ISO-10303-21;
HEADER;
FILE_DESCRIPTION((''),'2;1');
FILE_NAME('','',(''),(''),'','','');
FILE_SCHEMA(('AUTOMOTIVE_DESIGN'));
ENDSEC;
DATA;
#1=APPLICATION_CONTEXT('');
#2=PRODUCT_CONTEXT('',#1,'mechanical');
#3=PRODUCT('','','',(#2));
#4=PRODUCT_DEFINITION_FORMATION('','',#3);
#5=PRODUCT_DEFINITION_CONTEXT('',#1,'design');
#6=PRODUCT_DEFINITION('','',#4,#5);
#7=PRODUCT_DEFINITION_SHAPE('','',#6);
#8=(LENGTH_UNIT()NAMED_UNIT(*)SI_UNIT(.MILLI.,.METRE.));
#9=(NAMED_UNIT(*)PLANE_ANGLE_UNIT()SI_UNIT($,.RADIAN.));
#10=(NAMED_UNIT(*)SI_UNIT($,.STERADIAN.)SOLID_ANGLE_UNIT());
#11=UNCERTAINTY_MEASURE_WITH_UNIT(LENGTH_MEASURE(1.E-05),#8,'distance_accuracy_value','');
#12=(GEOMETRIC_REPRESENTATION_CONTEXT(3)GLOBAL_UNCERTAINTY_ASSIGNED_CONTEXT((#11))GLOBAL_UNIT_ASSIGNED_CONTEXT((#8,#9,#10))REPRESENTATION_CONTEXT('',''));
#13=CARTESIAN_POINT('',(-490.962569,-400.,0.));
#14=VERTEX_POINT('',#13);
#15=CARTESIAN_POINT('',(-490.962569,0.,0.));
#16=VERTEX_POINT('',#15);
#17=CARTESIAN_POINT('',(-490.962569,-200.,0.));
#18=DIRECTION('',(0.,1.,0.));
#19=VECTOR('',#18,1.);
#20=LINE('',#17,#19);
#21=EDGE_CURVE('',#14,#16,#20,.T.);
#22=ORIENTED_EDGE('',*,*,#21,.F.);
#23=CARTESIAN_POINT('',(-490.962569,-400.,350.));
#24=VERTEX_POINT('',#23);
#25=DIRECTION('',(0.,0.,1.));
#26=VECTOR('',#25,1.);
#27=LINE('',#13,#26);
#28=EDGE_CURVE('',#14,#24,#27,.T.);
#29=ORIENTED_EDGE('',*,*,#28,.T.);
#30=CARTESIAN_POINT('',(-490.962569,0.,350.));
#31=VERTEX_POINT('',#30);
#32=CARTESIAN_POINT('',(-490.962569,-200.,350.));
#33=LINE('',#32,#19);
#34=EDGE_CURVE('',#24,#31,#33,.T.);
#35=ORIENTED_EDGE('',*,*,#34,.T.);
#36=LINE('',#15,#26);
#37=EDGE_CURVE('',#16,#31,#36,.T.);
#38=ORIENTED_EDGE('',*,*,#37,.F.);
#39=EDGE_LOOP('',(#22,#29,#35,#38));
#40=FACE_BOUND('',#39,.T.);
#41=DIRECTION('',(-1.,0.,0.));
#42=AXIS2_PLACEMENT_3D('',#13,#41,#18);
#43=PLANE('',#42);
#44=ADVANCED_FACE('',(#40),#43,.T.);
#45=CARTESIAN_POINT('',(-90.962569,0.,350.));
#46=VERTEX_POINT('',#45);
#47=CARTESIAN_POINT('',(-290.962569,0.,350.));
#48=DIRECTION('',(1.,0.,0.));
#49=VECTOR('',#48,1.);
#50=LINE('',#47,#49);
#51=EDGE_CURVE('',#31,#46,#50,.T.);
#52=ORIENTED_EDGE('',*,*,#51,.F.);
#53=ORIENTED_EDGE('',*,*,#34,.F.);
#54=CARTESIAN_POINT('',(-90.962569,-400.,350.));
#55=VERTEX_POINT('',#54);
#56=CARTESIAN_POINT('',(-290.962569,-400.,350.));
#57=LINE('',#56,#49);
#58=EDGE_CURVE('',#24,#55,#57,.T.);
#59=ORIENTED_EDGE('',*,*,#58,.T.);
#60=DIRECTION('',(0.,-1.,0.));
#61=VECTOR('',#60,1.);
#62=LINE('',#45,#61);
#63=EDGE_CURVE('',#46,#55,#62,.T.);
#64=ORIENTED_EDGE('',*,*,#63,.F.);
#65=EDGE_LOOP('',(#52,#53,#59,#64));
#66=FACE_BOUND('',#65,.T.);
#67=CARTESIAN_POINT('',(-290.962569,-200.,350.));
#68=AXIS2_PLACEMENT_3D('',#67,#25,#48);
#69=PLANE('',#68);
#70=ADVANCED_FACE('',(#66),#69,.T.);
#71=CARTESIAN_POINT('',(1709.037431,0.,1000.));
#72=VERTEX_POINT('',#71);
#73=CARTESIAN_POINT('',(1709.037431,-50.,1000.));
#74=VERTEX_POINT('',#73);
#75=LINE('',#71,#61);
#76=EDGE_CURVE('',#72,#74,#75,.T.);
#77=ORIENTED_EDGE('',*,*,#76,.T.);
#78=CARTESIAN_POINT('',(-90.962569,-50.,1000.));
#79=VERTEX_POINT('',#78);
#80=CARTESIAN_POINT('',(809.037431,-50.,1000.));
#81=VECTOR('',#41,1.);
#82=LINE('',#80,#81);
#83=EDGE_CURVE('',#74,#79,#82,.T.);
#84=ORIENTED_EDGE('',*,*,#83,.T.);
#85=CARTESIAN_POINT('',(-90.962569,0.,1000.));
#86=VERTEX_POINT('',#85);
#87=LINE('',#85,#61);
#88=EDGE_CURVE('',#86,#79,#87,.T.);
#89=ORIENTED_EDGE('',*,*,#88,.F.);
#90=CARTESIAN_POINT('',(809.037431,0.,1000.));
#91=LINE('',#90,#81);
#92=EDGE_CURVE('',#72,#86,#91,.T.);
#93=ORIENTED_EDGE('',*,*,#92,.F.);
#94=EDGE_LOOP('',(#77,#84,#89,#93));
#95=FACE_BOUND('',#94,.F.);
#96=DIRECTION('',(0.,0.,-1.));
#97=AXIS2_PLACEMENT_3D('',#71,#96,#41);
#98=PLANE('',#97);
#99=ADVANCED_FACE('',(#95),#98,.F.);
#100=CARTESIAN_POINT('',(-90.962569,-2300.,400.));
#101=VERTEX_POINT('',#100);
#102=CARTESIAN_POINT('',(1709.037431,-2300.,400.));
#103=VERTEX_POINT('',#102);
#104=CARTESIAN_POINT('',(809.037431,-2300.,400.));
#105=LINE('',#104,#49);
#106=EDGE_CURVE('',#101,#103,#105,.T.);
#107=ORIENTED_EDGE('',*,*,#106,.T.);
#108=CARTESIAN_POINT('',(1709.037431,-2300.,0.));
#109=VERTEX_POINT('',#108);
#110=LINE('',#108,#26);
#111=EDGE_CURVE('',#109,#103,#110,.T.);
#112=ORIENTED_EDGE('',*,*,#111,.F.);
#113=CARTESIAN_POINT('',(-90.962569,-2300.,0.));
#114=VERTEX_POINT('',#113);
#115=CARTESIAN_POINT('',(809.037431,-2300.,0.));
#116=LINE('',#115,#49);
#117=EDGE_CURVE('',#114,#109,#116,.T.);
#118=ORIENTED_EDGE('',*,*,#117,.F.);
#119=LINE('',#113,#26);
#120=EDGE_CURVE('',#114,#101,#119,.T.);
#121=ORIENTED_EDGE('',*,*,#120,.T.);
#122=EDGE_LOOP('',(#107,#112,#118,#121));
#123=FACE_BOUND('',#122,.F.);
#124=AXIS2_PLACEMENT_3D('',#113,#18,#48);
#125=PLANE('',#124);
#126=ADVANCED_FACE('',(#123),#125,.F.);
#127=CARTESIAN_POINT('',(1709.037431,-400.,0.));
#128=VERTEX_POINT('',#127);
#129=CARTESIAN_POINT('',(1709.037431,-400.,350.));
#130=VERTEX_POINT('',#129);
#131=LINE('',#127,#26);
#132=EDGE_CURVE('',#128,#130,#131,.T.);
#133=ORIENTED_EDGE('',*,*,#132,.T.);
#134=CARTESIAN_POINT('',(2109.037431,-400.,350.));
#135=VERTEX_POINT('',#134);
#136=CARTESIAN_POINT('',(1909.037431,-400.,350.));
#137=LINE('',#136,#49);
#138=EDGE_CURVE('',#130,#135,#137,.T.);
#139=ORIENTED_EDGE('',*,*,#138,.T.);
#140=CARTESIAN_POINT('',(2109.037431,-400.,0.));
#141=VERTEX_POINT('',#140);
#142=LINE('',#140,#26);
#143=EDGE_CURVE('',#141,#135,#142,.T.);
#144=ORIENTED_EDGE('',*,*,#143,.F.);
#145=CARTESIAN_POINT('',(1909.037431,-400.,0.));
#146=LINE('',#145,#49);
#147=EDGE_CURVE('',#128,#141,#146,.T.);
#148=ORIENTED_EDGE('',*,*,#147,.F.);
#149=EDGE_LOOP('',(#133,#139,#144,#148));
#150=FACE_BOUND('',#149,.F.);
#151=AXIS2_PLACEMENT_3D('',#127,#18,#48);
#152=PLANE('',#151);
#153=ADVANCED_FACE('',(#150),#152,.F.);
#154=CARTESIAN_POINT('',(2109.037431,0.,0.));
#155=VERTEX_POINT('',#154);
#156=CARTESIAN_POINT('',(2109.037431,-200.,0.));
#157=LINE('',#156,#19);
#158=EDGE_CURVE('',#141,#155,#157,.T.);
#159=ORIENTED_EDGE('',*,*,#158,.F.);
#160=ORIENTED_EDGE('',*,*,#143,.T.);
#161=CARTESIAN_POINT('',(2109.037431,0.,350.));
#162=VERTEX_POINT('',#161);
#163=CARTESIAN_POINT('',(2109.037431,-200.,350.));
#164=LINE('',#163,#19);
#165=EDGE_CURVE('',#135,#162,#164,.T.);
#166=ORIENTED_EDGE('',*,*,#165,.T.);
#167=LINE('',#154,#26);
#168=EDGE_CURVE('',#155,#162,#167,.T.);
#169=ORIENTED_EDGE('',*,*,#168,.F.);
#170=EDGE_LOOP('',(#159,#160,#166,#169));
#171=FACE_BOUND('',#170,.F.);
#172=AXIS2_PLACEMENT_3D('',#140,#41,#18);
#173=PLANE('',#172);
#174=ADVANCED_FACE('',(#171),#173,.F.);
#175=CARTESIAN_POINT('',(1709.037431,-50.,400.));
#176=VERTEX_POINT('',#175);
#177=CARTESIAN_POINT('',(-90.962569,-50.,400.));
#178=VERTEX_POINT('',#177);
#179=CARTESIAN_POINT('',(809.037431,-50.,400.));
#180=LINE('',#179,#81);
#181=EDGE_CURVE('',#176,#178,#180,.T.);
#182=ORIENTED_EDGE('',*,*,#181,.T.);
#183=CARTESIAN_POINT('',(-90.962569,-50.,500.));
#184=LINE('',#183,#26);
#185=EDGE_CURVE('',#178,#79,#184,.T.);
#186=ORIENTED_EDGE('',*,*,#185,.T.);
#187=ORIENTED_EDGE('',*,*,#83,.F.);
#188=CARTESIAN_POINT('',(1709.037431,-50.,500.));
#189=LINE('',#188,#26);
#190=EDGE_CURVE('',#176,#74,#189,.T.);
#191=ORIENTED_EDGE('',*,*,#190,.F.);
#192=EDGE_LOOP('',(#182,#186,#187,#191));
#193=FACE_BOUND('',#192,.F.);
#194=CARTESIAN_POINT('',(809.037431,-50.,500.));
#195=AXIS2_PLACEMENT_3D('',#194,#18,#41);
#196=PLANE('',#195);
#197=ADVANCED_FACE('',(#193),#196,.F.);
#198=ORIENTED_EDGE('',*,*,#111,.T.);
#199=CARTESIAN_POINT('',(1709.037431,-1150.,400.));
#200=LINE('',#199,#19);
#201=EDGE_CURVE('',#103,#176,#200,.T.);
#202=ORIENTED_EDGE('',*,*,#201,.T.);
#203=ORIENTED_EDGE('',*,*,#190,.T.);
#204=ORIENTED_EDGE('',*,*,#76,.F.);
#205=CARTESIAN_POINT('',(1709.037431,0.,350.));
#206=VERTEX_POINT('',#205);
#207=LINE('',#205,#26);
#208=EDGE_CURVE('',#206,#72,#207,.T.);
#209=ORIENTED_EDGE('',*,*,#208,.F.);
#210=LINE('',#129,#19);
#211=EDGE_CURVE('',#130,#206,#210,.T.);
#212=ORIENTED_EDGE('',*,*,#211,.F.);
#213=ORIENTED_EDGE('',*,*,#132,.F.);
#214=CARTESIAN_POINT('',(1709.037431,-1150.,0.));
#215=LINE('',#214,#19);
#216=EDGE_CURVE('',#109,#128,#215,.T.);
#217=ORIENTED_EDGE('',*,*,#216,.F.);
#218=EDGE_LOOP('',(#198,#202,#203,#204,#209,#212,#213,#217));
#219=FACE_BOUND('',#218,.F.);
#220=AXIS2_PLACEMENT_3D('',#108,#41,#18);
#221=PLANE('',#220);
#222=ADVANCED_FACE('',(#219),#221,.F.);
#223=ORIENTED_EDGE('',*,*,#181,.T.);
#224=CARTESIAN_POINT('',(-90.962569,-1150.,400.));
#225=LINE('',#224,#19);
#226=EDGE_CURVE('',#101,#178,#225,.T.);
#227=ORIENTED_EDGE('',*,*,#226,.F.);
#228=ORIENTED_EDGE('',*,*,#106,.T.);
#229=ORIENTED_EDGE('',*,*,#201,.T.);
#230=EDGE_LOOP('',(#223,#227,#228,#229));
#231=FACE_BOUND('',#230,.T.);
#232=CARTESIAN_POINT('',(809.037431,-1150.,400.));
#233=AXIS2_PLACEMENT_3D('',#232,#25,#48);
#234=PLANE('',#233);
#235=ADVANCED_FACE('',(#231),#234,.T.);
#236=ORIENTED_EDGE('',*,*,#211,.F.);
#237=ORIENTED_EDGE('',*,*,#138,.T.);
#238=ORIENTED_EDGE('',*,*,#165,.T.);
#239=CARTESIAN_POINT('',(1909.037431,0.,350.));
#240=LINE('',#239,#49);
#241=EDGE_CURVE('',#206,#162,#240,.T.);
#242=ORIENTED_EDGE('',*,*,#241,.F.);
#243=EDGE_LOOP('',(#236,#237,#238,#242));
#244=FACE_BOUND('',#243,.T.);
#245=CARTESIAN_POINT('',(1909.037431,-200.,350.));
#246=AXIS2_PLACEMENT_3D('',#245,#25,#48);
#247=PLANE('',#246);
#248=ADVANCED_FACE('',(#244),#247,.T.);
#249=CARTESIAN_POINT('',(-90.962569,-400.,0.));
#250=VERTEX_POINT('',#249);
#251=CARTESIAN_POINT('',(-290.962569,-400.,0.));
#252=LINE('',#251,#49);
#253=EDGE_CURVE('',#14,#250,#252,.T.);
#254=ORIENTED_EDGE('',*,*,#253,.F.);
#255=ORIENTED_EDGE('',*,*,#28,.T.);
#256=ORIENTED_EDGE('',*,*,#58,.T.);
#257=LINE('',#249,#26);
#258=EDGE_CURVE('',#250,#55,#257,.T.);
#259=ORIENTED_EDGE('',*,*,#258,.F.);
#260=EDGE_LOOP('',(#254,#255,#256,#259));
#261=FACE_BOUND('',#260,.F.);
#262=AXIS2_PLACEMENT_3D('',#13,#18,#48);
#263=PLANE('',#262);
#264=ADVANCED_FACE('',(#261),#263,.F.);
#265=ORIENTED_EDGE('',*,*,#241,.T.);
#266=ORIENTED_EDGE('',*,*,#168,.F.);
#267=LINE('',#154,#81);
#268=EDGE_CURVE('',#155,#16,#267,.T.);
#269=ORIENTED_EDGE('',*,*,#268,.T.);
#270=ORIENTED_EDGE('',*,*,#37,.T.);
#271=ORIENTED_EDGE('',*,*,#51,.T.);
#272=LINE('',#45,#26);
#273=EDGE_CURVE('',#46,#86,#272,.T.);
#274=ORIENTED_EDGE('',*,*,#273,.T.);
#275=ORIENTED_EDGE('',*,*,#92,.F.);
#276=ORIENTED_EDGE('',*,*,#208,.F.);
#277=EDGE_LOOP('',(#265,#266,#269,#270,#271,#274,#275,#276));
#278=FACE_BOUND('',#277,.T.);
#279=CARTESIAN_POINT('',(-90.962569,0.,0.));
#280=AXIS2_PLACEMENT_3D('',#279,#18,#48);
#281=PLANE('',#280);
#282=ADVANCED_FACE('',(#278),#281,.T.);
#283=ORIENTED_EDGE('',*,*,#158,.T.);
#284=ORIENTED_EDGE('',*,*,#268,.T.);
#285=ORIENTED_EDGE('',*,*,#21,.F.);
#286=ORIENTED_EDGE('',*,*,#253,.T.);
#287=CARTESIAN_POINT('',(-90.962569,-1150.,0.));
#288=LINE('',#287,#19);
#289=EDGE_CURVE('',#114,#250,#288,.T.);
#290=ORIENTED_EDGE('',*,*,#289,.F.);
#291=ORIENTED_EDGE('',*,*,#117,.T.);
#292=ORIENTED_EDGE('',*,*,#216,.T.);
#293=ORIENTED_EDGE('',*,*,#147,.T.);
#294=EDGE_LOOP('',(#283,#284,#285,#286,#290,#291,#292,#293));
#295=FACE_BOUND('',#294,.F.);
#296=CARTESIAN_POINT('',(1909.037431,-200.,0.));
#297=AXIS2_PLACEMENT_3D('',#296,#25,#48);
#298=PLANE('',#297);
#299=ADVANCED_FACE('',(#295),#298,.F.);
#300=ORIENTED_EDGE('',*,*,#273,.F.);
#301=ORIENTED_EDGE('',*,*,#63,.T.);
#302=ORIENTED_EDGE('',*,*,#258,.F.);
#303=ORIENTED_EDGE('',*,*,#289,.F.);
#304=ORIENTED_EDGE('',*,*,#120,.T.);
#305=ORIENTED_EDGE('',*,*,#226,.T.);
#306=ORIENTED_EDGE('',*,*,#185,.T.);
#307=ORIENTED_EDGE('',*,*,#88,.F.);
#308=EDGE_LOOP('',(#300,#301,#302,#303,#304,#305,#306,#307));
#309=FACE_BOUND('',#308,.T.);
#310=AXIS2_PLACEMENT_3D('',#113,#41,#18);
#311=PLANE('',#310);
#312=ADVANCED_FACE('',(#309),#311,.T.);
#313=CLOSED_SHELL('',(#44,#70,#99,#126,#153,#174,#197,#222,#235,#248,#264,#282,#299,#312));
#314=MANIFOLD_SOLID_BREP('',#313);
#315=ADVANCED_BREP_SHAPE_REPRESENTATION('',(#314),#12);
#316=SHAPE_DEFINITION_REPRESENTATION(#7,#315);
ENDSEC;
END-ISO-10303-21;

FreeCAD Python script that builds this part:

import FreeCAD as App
import Part
import Sketcher
from FreeCAD import Vector
Q = App.Units.Quantity

doc = App.newDocument("Part")
params = doc.addObject("Spreadsheet::Sheet", "Params")
for row, (alias, value) in enumerate([
    ("sketch1_width", "1800 mm"),
    ("sketch1_height", "2300 mm"),
    ("pad1_length", "400 mm"),
    ("sketch2_width", "400 mm"),
    ("pad2_length", "350 mm"),
    ("sketch3_width", "1800 mm"),
    ("sketch3_height", "1000 mm"),
    ("pad3_length", "50 mm"),
], start=1):
    params.set(f"A{row}", alias)
    params.set(f"B{row}", "=" + value)
    params.setAlias(f"B{row}", alias)

body = doc.addObject("PartDesign::Body", "Body")

sketch1 = body.newObject("Sketcher::SketchObject", "Sketch")
sketch1.AttachmentSupport = (doc.getObject("XY_Plane"), [""])
sketch1.MapMode = "FlatFace"
sketch1.addGeometry([
    Part.LineSegment(Vector(-91, 0, 0), Vector(-91, -2300, 0)),
    Part.LineSegment(Vector(-91, -2300, 0), Vector(1709, -2300, 0)),
    Part.LineSegment(Vector(1709, -2300, 0), Vector(1709, 0, 0)),
    Part.LineSegment(Vector(1709, 0, 0), Vector(-91, 0, 0)),
], False)
sketch1.addConstraint([
    Sketcher.Constraint("Coincident", 0, 2, 1, 1),
    Sketcher.Constraint("Coincident", 1, 2, 2, 1),
    Sketcher.Constraint("Coincident", 2, 2, 3, 1),
    Sketcher.Constraint("Coincident", 3, 2, 0, 1),
    Sketcher.Constraint("Vertical", 0),
    Sketcher.Constraint("Horizontal", 1),
    Sketcher.Constraint("Vertical", 2),
    Sketcher.Constraint("Horizontal", 3),
    Sketcher.Constraint("PointOnObject", 2, 2, -1),
    Sketcher.Constraint("DistanceX", 1, 1, 1, 2, Q("1800 mm")),
    Sketcher.Constraint("DistanceY", 0, 2, 0, 1, Q("2300 mm")),
    Sketcher.Constraint("DistanceX", 0, 2, -1, 1, Q("90.962569 mm")),
])
sketch1.setExpression("Constraints[9]", "Params.sketch1_width")
sketch1.setExpression("Constraints[10]", "Params.sketch1_height")
pad1 = body.newObject("PartDesign::Pad", "Pad")
pad1.Profile = sketch1
pad1.setExpression("Length", "Params.pad1_length")

sketch2 = body.newObject("Sketcher::SketchObject", "Sketch001")
sketch2.AttachmentSupport = (doc.getObject("XY_Plane"), [""])
sketch2.MapMode = "FlatFace"
sketch2.addGeometry([
    Part.LineSegment(Vector(1709, 0, 0), Vector(1709, -400, 0)),
    Part.LineSegment(Vector(1709, -400, 0), Vector(2109, -400, 0)),
    Part.LineSegment(Vector(2109, -400, 0), Vector(2109, 0, 0)),
    Part.LineSegment(Vector(2109, 0, 0), Vector(1709, 0, 0)),
    Part.LineSegment(Vector(-491, 0, 0), Vector(-491, -400, 0)),
    Part.LineSegment(Vector(-491, -400, 0), Vector(-91, -400, 0)),
    Part.LineSegment(Vector(-91, -400, 0), Vector(-91, 0, 0)),
    Part.LineSegment(Vector(-91, 0, 0), Vector(-491, 0, 0)),
], False)
sketch2.addConstraint([
    Sketcher.Constraint("Coincident", 0, 2, 1, 1),
    Sketcher.Constraint("Coincident", 1, 2, 2, 1),
    Sketcher.Constraint("Coincident", 2, 2, 3, 1),
    Sketcher.Constraint("Coincident", 3, 2, 0, 1),
    Sketcher.Constraint("Coincident", 4, 2, 5, 1),
    Sketcher.Constraint("Coincident", 5, 2, 6, 1),
    Sketcher.Constraint("Coincident", 6, 2, 7, 1),
    Sketcher.Constraint("Coincident", 7, 2, 4, 1),
    Sketcher.Constraint("Vertical", 0),
    Sketcher.Constraint("Horizontal", 1),
    Sketcher.Constraint("Vertical", 2),
    Sketcher.Constraint("Horizontal", 3),
    Sketcher.Constraint("Vertical", 4),
    Sketcher.Constraint("Horizontal", 5),
    Sketcher.Constraint("Vertical", 6),
    Sketcher.Constraint("Horizontal", 7),
    Sketcher.Constraint("PointOnObject", 2, 2, -1),
    Sketcher.Constraint("PointOnObject", 6, 2, -1),
    Sketcher.Constraint("Horizontal", 1, 2, 4, 2),
    Sketcher.Constraint("Equal", 3, 5),
    Sketcher.Constraint("Equal", 7, 0),
    Sketcher.Constraint("DistanceX", 1, 1, 1, 2, Q("400 mm")),
    Sketcher.Constraint("DistanceX", 4, 2, 0, 2, Q("2200 mm")),
    Sketcher.Constraint("DistanceX", -1, 1, 0, 2, Q("1709.037431 mm")),
])
sketch2.setExpression("Constraints[21]", "Params.sketch2_width")
pad2 = body.newObject("PartDesign::Pad", "Pad001")
pad2.Profile = sketch2
pad2.setExpression("Length", "Params.pad2_length")

sketch3 = body.newObject("Sketcher::SketchObject", "Sketch002")
sketch3.AttachmentSupport = (doc.getObject("XZ_Plane"), [""])
sketch3.MapMode = "FlatFace"
sketch3.addGeometry([
    Part.LineSegment(Vector(1709, 1000, 0), Vector(1709, 0, 0)),
    Part.LineSegment(Vector(1709, 0, 0), Vector(-91, 0, 0)),
    Part.LineSegment(Vector(-91, 0, 0), Vector(-91, 1000, 0)),
    Part.LineSegment(Vector(-91, 1000, 0), Vector(1709, 1000, 0)),
], False)
sketch3.addConstraint([
    Sketcher.Constraint("Coincident", 0, 2, 1, 1),
    Sketcher.Constraint("Coincident", 1, 2, 2, 1),
    Sketcher.Constraint("Coincident", 2, 2, 3, 1),
    Sketcher.Constraint("Coincident", 3, 2, 0, 1),
    Sketcher.Constraint("Vertical", 0),
    Sketcher.Constraint("Horizontal", 1),
    Sketcher.Constraint("Vertical", 2),
    Sketcher.Constraint("Horizontal", 3),
    Sketcher.Constraint("PointOnObject", 0, 2, -1),
    Sketcher.Constraint("DistanceX", 1, 2, 1, 1, Q("1800 mm")),
    Sketcher.Constraint("DistanceY", 0, 2, 0, 1, Q("1000 mm")),
    Sketcher.Constraint("DistanceX", -1, 1, 0, 2, Q("1709.037431 mm")),
])
sketch3.setExpression("Constraints[9]", "Params.sketch3_width")
sketch3.setExpression("Constraints[10]", "Params.sketch3_height")
pad3 = body.newObject("PartDesign::Pad", "Pad002")
pad3.Profile = sketch3
pad3.setExpression("Length", "Params.pad3_length")

doc.recompute()
